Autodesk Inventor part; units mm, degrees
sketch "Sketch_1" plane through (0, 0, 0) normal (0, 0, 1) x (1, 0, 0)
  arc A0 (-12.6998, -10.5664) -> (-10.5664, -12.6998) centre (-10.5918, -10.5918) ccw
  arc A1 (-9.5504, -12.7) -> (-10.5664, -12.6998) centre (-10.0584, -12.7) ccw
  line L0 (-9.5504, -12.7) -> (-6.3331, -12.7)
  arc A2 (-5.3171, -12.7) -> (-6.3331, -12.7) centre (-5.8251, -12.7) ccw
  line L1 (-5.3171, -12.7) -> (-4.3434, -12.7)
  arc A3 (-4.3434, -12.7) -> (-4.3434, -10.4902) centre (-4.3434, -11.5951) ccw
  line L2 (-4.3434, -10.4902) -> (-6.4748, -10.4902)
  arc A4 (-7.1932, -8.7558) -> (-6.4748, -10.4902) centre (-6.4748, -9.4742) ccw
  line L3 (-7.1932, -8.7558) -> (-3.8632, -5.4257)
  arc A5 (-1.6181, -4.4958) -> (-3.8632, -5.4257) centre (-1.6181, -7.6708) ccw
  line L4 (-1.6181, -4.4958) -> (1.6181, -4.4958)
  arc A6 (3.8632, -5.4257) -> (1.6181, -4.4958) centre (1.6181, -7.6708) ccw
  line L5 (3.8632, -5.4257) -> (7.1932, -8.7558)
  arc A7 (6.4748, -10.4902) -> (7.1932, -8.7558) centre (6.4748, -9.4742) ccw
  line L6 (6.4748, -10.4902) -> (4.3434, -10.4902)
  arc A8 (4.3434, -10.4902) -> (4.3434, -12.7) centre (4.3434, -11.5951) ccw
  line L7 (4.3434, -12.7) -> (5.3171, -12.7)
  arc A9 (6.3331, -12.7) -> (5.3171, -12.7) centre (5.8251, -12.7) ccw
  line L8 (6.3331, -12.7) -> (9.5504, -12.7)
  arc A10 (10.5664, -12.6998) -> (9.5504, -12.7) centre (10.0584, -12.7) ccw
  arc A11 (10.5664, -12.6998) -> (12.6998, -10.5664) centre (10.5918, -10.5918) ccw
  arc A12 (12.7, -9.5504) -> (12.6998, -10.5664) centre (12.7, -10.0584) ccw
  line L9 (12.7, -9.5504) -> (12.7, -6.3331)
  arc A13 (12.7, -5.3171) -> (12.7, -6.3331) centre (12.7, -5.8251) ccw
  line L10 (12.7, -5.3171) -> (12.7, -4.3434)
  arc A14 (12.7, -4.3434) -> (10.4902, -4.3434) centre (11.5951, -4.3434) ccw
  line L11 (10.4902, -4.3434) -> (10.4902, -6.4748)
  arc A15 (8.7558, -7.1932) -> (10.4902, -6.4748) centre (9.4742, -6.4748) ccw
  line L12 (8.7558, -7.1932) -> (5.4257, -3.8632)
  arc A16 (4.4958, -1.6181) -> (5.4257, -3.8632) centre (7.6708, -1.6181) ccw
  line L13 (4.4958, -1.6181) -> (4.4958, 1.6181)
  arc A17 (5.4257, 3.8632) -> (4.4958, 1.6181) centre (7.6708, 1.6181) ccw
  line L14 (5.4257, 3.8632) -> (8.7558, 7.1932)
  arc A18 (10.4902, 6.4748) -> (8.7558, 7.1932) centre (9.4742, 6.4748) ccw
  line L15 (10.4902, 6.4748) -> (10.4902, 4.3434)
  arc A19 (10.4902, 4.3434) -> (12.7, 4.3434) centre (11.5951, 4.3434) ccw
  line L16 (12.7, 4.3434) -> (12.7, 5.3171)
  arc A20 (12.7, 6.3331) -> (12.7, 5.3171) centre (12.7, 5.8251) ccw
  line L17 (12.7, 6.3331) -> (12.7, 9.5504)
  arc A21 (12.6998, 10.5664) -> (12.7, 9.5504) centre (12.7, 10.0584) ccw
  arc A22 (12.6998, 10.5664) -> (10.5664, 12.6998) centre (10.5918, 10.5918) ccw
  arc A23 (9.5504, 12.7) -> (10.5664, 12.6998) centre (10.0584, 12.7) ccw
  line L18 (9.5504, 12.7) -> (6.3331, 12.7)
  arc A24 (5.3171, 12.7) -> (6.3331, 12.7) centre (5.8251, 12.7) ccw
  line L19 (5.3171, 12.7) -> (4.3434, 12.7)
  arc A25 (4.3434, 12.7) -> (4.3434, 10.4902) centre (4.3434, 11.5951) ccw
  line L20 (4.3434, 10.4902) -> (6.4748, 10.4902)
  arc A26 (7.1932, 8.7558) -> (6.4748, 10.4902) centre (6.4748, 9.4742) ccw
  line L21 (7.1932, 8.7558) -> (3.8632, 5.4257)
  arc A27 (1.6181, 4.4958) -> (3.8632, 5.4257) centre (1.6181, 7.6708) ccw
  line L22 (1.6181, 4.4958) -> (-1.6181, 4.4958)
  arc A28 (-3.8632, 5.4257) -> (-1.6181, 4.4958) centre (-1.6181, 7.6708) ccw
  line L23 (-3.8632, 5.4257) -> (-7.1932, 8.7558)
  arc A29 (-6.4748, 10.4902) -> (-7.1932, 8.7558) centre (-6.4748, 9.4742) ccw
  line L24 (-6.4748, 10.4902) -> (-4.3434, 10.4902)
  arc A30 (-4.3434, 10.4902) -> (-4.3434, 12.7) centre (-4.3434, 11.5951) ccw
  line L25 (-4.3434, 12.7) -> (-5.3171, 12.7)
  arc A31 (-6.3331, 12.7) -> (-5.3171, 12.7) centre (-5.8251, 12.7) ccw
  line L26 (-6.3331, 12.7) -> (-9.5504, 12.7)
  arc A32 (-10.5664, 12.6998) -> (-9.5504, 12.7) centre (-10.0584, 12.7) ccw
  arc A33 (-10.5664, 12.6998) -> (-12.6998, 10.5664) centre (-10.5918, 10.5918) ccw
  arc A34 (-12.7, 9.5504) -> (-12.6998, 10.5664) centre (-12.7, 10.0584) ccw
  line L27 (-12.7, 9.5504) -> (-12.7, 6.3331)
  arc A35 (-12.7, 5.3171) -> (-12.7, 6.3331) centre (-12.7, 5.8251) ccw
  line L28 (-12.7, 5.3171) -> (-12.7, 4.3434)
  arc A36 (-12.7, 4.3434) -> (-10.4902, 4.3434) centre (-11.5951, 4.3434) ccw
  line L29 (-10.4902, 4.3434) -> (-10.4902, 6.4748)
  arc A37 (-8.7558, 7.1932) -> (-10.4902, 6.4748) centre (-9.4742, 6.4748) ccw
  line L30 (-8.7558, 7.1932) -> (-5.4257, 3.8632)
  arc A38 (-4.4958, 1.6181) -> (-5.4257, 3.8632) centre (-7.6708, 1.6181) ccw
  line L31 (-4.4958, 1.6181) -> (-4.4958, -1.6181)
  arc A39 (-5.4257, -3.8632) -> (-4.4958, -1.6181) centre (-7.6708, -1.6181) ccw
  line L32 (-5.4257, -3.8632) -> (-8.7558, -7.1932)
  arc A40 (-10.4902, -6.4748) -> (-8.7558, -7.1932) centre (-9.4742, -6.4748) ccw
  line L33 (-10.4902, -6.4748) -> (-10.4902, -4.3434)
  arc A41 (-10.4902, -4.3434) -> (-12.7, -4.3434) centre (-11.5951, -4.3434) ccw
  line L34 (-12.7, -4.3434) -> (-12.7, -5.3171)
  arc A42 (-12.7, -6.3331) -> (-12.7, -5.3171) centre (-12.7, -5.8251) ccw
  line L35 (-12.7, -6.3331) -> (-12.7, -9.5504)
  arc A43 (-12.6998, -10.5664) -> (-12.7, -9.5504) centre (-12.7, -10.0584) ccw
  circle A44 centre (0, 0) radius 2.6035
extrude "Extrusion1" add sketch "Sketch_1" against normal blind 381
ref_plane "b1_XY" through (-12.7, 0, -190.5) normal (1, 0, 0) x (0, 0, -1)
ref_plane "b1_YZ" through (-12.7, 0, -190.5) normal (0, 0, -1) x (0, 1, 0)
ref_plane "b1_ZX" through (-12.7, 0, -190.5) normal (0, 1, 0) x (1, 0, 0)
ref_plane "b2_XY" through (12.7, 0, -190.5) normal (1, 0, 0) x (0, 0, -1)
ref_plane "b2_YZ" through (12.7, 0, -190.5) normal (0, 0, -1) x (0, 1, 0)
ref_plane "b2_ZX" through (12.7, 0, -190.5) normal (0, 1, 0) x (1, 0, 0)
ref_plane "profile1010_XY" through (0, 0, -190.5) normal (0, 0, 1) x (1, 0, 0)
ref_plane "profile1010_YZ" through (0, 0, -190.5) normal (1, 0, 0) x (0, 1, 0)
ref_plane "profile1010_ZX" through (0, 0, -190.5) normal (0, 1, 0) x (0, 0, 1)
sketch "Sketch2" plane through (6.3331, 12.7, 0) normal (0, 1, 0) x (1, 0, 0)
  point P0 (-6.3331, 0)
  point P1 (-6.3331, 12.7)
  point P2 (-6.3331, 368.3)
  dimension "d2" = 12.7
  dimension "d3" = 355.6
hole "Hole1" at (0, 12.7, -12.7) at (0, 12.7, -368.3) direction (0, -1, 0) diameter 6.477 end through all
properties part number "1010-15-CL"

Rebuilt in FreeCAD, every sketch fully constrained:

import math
import FreeCAD as App
import Part
import Sketcher
from FreeCAD import Vector
Q = App.Units.Quantity

doc = App.newDocument("Part")
body = doc.addObject("PartDesign::Body", "Body")

# Sketch on XY plane
sketch1 = doc.addObject("Sketcher::SketchObject", "Sketch")
body.addObject(sketch1)
sketch1.AttachmentSupport = (doc.XY_Plane, [""])
sketch1.MapMode = "FlatFace"
sketch1.addGeometry([
    Part.ArcOfCircle(Part.Circle(Vector(-12.7, -10.1, 0), Vector(0, 0, 1), 0.5), math.radians(-90), math.radians(90)),  # 0
    Part.ArcOfCircle(Part.Circle(Vector(-10.6, -10.6, 0), Vector(0, 0, 1), 2.1), math.radians(179), math.radians(271)),  # 1
    Part.ArcOfCircle(Part.Circle(Vector(-10.1, -12.7, 0), Vector(0, 0, 1), 0.5), math.radians(0), math.radians(180)),  # 2
    Part.LineSegment(Vector(-9.6, -12.7, 0), Vector(-6.3, -12.7, 0)),  # 3
    Part.ArcOfCircle(Part.Circle(Vector(-5.8, -12.7, 0), Vector(0, 0, 1), 0.5), math.radians(0), math.radians(180)),  # 4
    Part.LineSegment(Vector(-5.3, -12.7, 0), Vector(-4.3, -12.7, 0)),  # 5
    Part.ArcOfCircle(Part.Circle(Vector(-4.3, -11.6, 0), Vector(0, 0, 1), 1.1), math.radians(-90), math.radians(90)),  # 6
    Part.LineSegment(Vector(-4.3, -10.5, 0), Vector(-6.5, -10.5, 0)),  # 7
    Part.ArcOfCircle(Part.Circle(Vector(-6.5, -9.5, 0), Vector(0, 0, 1), 1), math.radians(135), math.radians(270)),  # 8
    Part.LineSegment(Vector(-7.2, -8.8, 0), Vector(-3.9, -5.4, 0)),  # 9
    Part.ArcOfCircle(Part.Circle(Vector(-1.6, -7.7, 0), Vector(0, 0, 1), 3.2), math.radians(90), math.radians(135)),  # 10
    Part.LineSegment(Vector(-1.6, -4.5, 0), Vector(1.6, -4.5, 0)),  # 11
    Part.ArcOfCircle(Part.Circle(Vector(1.6, -7.7, 0), Vector(0, 0, 1), 3.2), math.radians(45), math.radians(90)),  # 12
    Part.LineSegment(Vector(3.9, -5.4, 0), Vector(7.2, -8.8, 0)),  # 13
    Part.ArcOfCircle(Part.Circle(Vector(6.5, -9.5, 0), Vector(0, 0, 1), 1), math.radians(-90), math.radians(45)),  # 14
    Part.LineSegment(Vector(6.5, -10.5, 0), Vector(4.3, -10.5, 0)),  # 15
    Part.ArcOfCircle(Part.Circle(Vector(4.3, -11.6, 0), Vector(0, 0, 1), 1.1), math.radians(90), math.radians(270)),  # 16
    Part.LineSegment(Vector(4.3, -12.7, 0), Vector(5.3, -12.7, 0)),  # 17
    Part.ArcOfCircle(Part.Circle(Vector(5.8, -12.7, 0), Vector(0, 0, 1), 0.5), math.radians(0), math.radians(180)),  # 18
    Part.LineSegment(Vector(6.3, -12.7, 0), Vector(9.6, -12.7, 0)),  # 19
    Part.ArcOfCircle(Part.Circle(Vector(10.1, -12.7, 0), Vector(0, 0, 1), 0.5), math.radians(0), math.radians(180)),  # 20
    Part.ArcOfCircle(Part.Circle(Vector(10.6, -10.6, 0), Vector(0, 0, 1), 2.1), math.radians(-91), math.radians(1)),  # 21
    Part.ArcOfCircle(Part.Circle(Vector(12.7, -10.1, 0), Vector(0, 0, 1), 0.5), math.radians(90), math.radians(270)),  # 22
    Part.LineSegment(Vector(12.7, -9.6, 0), Vector(12.7, -6.3, 0)),  # 23
    Part.ArcOfCircle(Part.Circle(Vector(12.7, -5.8, 0), Vector(0, 0, 1), 0.5), math.radians(90), math.radians(270)),  # 24
    Part.LineSegment(Vector(12.7, -5.3, 0), Vector(12.7, -4.3, 0)),  # 25
    Part.ArcOfCircle(Part.Circle(Vector(11.6, -4.3, 0), Vector(0, 0, 1), 1.1), math.radians(0), math.radians(180)),  # 26
    Part.LineSegment(Vector(10.5, -4.3, 0), Vector(10.5, -6.5, 0)),  # 27
    Part.ArcOfCircle(Part.Circle(Vector(9.5, -6.5, 0), Vector(0, 0, 1), 1), math.radians(-135), math.radians(0)),  # 28
    Part.LineSegment(Vector(8.8, -7.2, 0), Vector(5.4, -3.9, 0)),  # 29
    Part.ArcOfCircle(Part.Circle(Vector(7.7, -1.6, 0), Vector(0, 0, 1), 3.2), math.radians(180), math.radians(225)),  # 30
    Part.LineSegment(Vector(4.5, -1.6, 0), Vector(4.5, 1.6, 0)),  # 31
    Part.ArcOfCircle(Part.Circle(Vector(7.7, 1.6, 0), Vector(0, 0, 1), 3.2), math.radians(135), math.radians(180)),  # 32
    Part.LineSegment(Vector(5.4, 3.9, 0), Vector(8.8, 7.2, 0)),  # 33
    Part.ArcOfCircle(Part.Circle(Vector(9.5, 6.5, 0), Vector(0, 0, 1), 1), math.radians(0), math.radians(135)),  # 34
    Part.LineSegment(Vector(10.5, 6.5, 0), Vector(10.5, 4.3, 0)),  # 35
    Part.ArcOfCircle(Part.Circle(Vector(11.6, 4.3, 0), Vector(0, 0, 1), 1.1), math.radians(180), math.radians(360)),  # 36
    Part.LineSegment(Vector(12.7, 4.3, 0), Vector(12.7, 5.3, 0)),  # 37
    Part.ArcOfCircle(Part.Circle(Vector(12.7, 5.8, 0), Vector(0, 0, 1), 0.5), math.radians(90), math.radians(270)),  # 38
    Part.LineSegment(Vector(12.7, 6.3, 0), Vector(12.7, 9.6, 0)),  # 39
    Part.ArcOfCircle(Part.Circle(Vector(12.7, 10.1, 0), Vector(0, 0, 1), 0.5), math.radians(90), math.radians(270)),  # 40
    Part.ArcOfCircle(Part.Circle(Vector(10.6, 10.6, 0), Vector(0, 0, 1), 2.1), math.radians(-1), math.radians(91)),  # 41
    Part.ArcOfCircle(Part.Circle(Vector(10.1, 12.7, 0), Vector(0, 0, 1), 0.5), math.radians(180), math.radians(360)),  # 42
    Part.LineSegment(Vector(9.6, 12.7, 0), Vector(6.3, 12.7, 0)),  # 43
    Part.ArcOfCircle(Part.Circle(Vector(5.8, 12.7, 0), Vector(0, 0, 1), 0.5), math.radians(180), math.radians(360)),  # 44
    Part.LineSegment(Vector(5.3, 12.7, 0), Vector(4.3, 12.7, 0)),  # 45
    Part.ArcOfCircle(Part.Circle(Vector(4.3, 11.6, 0), Vector(0, 0, 1), 1.1), math.radians(90), math.radians(270)),  # 46
    Part.LineSegment(Vector(4.3, 10.5, 0), Vector(6.5, 10.5, 0)),  # 47
    Part.ArcOfCircle(Part.Circle(Vector(6.5, 9.5, 0), Vector(0, 0, 1), 1), math.radians(-45), math.radians(90)),  # 48
    Part.LineSegment(Vector(7.2, 8.8, 0), Vector(3.9, 5.4, 0)),  # 49
    Part.ArcOfCircle(Part.Circle(Vector(1.6, 7.7, 0), Vector(0, 0, 1), 3.2), math.radians(-90), math.radians(-45)),  # 50
    Part.LineSegment(Vector(1.6, 4.5, 0), Vector(-1.6, 4.5, 0)),  # 51
    Part.ArcOfCircle(Part.Circle(Vector(-1.6, 7.7, 0), Vector(0, 0, 1), 3.2), math.radians(-135), math.radians(-90)),  # 52
    Part.LineSegment(Vector(-3.9, 5.4, 0), Vector(-7.2, 8.8, 0)),  # 53
    Part.ArcOfCircle(Part.Circle(Vector(-6.5, 9.5, 0), Vector(0, 0, 1), 1), math.radians(90), math.radians(225)),  # 54
    Part.LineSegment(Vector(-6.5, 10.5, 0), Vector(-4.3, 10.5, 0)),  # 55
    Part.ArcOfCircle(Part.Circle(Vector(-4.3, 11.6, 0), Vector(0, 0, 1), 1.1), math.radians(-90), math.radians(90)),  # 56
    Part.LineSegment(Vector(-4.3, 12.7, 0), Vector(-5.3, 12.7, 0)),  # 57
    Part.ArcOfCircle(Part.Circle(Vector(-5.8, 12.7, 0), Vector(0, 0, 1), 0.5), math.radians(180), math.radians(360)),  # 58
    Part.LineSegment(Vector(-6.3, 12.7, 0), Vector(-9.6, 12.7, 0)),  # 59
    Part.ArcOfCircle(Part.Circle(Vector(-10.1, 12.7, 0), Vector(0, 0, 1), 0.5), math.radians(-180), math.radians(0)),  # 60
    Part.ArcOfCircle(Part.Circle(Vector(-10.6, 10.6, 0), Vector(0, 0, 1), 2.1), math.radians(89), math.radians(181)),  # 61
    Part.ArcOfCircle(Part.Circle(Vector(-12.7, 10.1, 0), Vector(0, 0, 1), 0.5), math.radians(-90), math.radians(90)),  # 62
    Part.LineSegment(Vector(-12.7, 9.6, 0), Vector(-12.7, 6.3, 0)),  # 63
    Part.ArcOfCircle(Part.Circle(Vector(-12.7, 5.8, 0), Vector(0, 0, 1), 0.5), math.radians(-90), math.radians(90)),  # 64
    Part.LineSegment(Vector(-12.7, 5.3, 0), Vector(-12.7, 4.3, 0)),  # 65
    Part.ArcOfCircle(Part.Circle(Vector(-11.6, 4.3, 0), Vector(0, 0, 1), 1.1), math.radians(180), math.radians(360)),  # 66
    Part.LineSegment(Vector(-10.5, 4.3, 0), Vector(-10.5, 6.5, 0)),  # 67
    Part.ArcOfCircle(Part.Circle(Vector(-9.5, 6.5, 0), Vector(0, 0, 1), 1), math.radians(45), math.radians(180)),  # 68
    Part.LineSegment(Vector(-8.8, 7.2, 0), Vector(-5.4, 3.9, 0)),  # 69
    Part.ArcOfCircle(Part.Circle(Vector(-7.7, 1.6, 0), Vector(0, 0, 1), 3.2), math.radians(0), math.radians(45)),  # 70
    Part.LineSegment(Vector(-4.5, 1.6, 0), Vector(-4.5, -1.6, 0)),  # 71
    Part.ArcOfCircle(Part.Circle(Vector(-7.7, -1.6, 0), Vector(0, 0, 1), 3.2), math.radians(-45), math.radians(0)),  # 72
    Part.LineSegment(Vector(-5.4, -3.9, 0), Vector(-8.8, -7.2, 0)),  # 73
    Part.ArcOfCircle(Part.Circle(Vector(-9.5, -6.5, 0), Vector(0, 0, 1), 1), math.radians(180), math.radians(315)),  # 74
    Part.LineSegment(Vector(-10.5, -6.5, 0), Vector(-10.5, -4.3, 0)),  # 75
    Part.ArcOfCircle(Part.Circle(Vector(-11.6, -4.3, 0), Vector(0, 0, 1), 1.1), math.radians(0), math.radians(180)),  # 76
    Part.LineSegment(Vector(-12.7, -4.3, 0), Vector(-12.7, -5.3, 0)),  # 77
    Part.ArcOfCircle(Part.Circle(Vector(-12.7, -5.8, 0), Vector(0, 0, 1), 0.5), math.radians(-90), math.radians(90)),  # 78
    Part.LineSegment(Vector(-12.7, -6.3, 0), Vector(-12.7, -9.6, 0)),  # 79
    Part.Circle(Vector(0, 0, 0), Vector(0, 0, 1), 2.6),  # 80
], False)
sketch1.addConstraint([
    Sketcher.Constraint("Coincident", 0, 1, 1, 1),
    Sketcher.Constraint("Coincident", 1, 2, 2, 2),
    Sketcher.Constraint("Coincident", 2, 1, 3, 1),
    Sketcher.Constraint("Coincident", 3, 2, 4, 2),
    Sketcher.Constraint("Coincident", 4, 1, 5, 1),
    Sketcher.Constraint("Tangent", 5, 2, 6, 1),
    Sketcher.Constraint("Tangent", 6, 2, 7, 1),
    Sketcher.Constraint("Tangent", 7, 2, 8, 2),
    Sketcher.Constraint("Tangent", 8, 1, 9, 1),
    Sketcher.Constraint("Tangent", 9, 2, 10, 2),
    Sketcher.Constraint("Tangent", 10, 1, 11, 1),
    Sketcher.Constraint("Tangent", 11, 2, 12, 2),
    Sketcher.Constraint("Tangent", 12, 1, 13, 1),
    Sketcher.Constraint("Tangent", 13, 2, 14, 2),
    Sketcher.Constraint("Tangent", 14, 1, 15, 1),
    Sketcher.Constraint("Tangent", 15, 2, 16, 1),
    Sketcher.Constraint("Tangent", 16, 2, 17, 1),
    Sketcher.Constraint("Coincident", 17, 2, 18, 2),
    Sketcher.Constraint("Coincident", 18, 1, 19, 1),
    Sketcher.Constraint("Coincident", 19, 2, 20, 2),
    Sketcher.Constraint("Coincident", 20, 1, 21, 1),
    Sketcher.Constraint("Coincident", 21, 2, 22, 2),
    Sketcher.Constraint("Coincident", 22, 1, 23, 1),
    Sketcher.Constraint("Coincident", 23, 2, 24, 2),
    Sketcher.Constraint("Coincident", 24, 1, 25, 1),
    Sketcher.Constraint("Tangent", 25, 2, 26, 1),
    Sketcher.Constraint("Tangent", 26, 2, 27, 1),
    Sketcher.Constraint("Tangent", 27, 2, 28, 2),
    Sketcher.Constraint("Tangent", 28, 1, 29, 1),
    Sketcher.Constraint("Tangent", 29, 2, 30, 2),
    Sketcher.Constraint("Tangent", 30, 1, 31, 1),
    Sketcher.Constraint("Tangent", 31, 2, 32, 2),
    Sketcher.Constraint("Tangent", 32, 1, 33, 1),
    Sketcher.Constraint("Tangent", 33, 2, 34, 2),
    Sketcher.Constraint("Tangent", 34, 1, 35, 1),
    Sketcher.Constraint("Tangent", 35, 2, 36, 1),
    Sketcher.Constraint("Tangent", 36, 2, 37, 1),
    Sketcher.Constraint("Coincident", 37, 2, 38, 2),
    Sketcher.Constraint("Coincident", 38, 1, 39, 1),
    Sketcher.Constraint("Coincident", 39, 2, 40, 2),
    Sketcher.Constraint("Coincident", 40, 1, 41, 1),
    Sketcher.Constraint("Coincident", 41, 2, 42, 2),
    Sketcher.Constraint("Coincident", 42, 1, 43, 1),
    Sketcher.Constraint("Coincident", 43, 2, 44, 2),
    Sketcher.Constraint("Coincident", 44, 1, 45, 1),
    Sketcher.Constraint("Tangent", 45, 2, 46, 1),
    Sketcher.Constraint("Tangent", 46, 2, 47, 1),
    Sketcher.Constraint("Tangent", 47, 2, 48, 2),
    Sketcher.Constraint("Tangent", 48, 1, 49, 1),
    Sketcher.Constraint("Tangent", 49, 2, 50, 2),
    Sketcher.Constraint("Tangent", 50, 1, 51, 1),
    Sketcher.Constraint("Tangent", 51, 2, 52, 2),
    Sketcher.Constraint("Tangent", 52, 1, 53, 1),
    Sketcher.Constraint("Tangent", 53, 2, 54, 2),
    Sketcher.Constraint("Tangent", 54, 1, 55, 1),
    Sketcher.Constraint("Tangent", 55, 2, 56, 1),
    Sketcher.Constraint("Tangent", 56, 2, 57, 1),
    Sketcher.Constraint("Coincident", 57, 2, 58, 2),
    Sketcher.Constraint("Coincident", 58, 1, 59, 1),
    Sketcher.Constraint("Coincident", 59, 2, 60, 2),
    Sketcher.Constraint("Coincident", 60, 1, 61, 1),
    Sketcher.Constraint("Coincident", 61, 2, 62, 2),
    Sketcher.Constraint("Coincident", 62, 1, 63, 1),
    Sketcher.Constraint("Coincident", 63, 2, 64, 2),
    Sketcher.Constraint("Coincident", 64, 1, 65, 1),
    Sketcher.Constraint("Tangent", 65, 2, 66, 1),
    Sketcher.Constraint("Tangent", 66, 2, 67, 1),
    Sketcher.Constraint("Tangent", 67, 2, 68, 2),
    Sketcher.Constraint("Tangent", 68, 1, 69, 1),
    Sketcher.Constraint("Tangent", 69, 2, 70, 2),
    Sketcher.Constraint("Tangent", 70, 1, 71, 1),
    Sketcher.Constraint("Tangent", 71, 2, 72, 2),
    Sketcher.Constraint("Tangent", 72, 1, 73, 1),
    Sketcher.Constraint("Tangent", 73, 2, 74, 2),
    Sketcher.Constraint("Tangent", 74, 1, 75, 1),
    Sketcher.Constraint("Tangent", 75, 2, 76, 1),
    Sketcher.Constraint("Tangent", 76, 2, 77, 1),
    Sketcher.Constraint("Coincident", 77, 2, 78, 2),
    Sketcher.Constraint("Coincident", 78, 1, 79, 1),
    Sketcher.Constraint("Coincident", 79, 2, 0, 2),
    Sketcher.Constraint("Horizontal", 3),
    Sketcher.Constraint("Horizontal", 5),
    Sketcher.Constraint("Horizontal", 7),
    Sketcher.Constraint("Horizontal", 11),
    Sketcher.Constraint("Horizontal", 15),
    Sketcher.Constraint("Horizontal", 17),
    Sketcher.Constraint("Horizontal", 19),
    Sketcher.Constraint("Vertical", 23),
    Sketcher.Constraint("Vertical", 25),
    Sketcher.Constraint("Vertical", 27),
    Sketcher.Constraint("Vertical", 31),
    Sketcher.Constraint("Vertical", 35),
    Sketcher.Constraint("Vertical", 37),
    Sketcher.Constraint("Vertical", 39),
    Sketcher.Constraint("Horizontal", 43),
    Sketcher.Constraint("Horizontal", 45),
    Sketcher.Constraint("Horizontal", 47),
    Sketcher.Constraint("Horizontal", 51),
    Sketcher.Constraint("Horizontal", 55),
    Sketcher.Constraint("Horizontal", 57),
    Sketcher.Constraint("Horizontal", 59),
    Sketcher.Constraint("Vertical", 63),
    Sketcher.Constraint("Vertical", 65),
    Sketcher.Constraint("Vertical", 67),
    Sketcher.Constraint("Vertical", 71),
    Sketcher.Constraint("Vertical", 75),
    Sketcher.Constraint("Vertical", 77),
    Sketcher.Constraint("Vertical", 79),
    Sketcher.Constraint("Coincident", 80, 3, -1, 1),
    Sketcher.Constraint("Equal", 0, 2),
    Sketcher.Constraint("Equal", 2, 4),
    Sketcher.Constraint("Equal", 10, 12),
    Sketcher.Constraint("Equal", 8, 14),
    Sketcher.Constraint("Equal", 6, 16),
    Sketcher.Constraint("Equal", 4, 18),
    Sketcher.Constraint("Equal", 18, 20),
    Sketcher.Constraint("Equal", 1, 21),
    Sketcher.Constraint("Equal", 20, 22),
    Sketcher.Constraint("Equal", 22, 24),
    Sketcher.Constraint("Equal", 16, 26),
    Sketcher.Constraint("Equal", 14, 28),
    Sketcher.Constraint("Equal", 12, 30),
    Sketcher.Constraint("Equal", 30, 32),
    Sketcher.Constraint("Equal", 28, 34),
    Sketcher.Constraint("Equal", 26, 36),
    Sketcher.Constraint("Equal", 24, 38),
    Sketcher.Constraint("Equal", 38, 40),
    Sketcher.Constraint("Equal", 21, 41),
    Sketcher.Constraint("Equal", 40, 42),
    Sketcher.Constraint("Equal", 42, 44),
    Sketcher.Constraint("Equal", 36, 46),
    Sketcher.Constraint("Equal", 34, 48),
    Sketcher.Constraint("Equal", 32, 50),
    Sketcher.Constraint("Equal", 50, 52),
    Sketcher.Constraint("Equal", 48, 54),
    Sketcher.Constraint("Equal", 46, 56),
    Sketcher.Constraint("Equal", 44, 58),
    Sketcher.Constraint("Equal", 58, 60),
    Sketcher.Constraint("Equal", 41, 61),
    Sketcher.Constraint("Equal", 60, 62),
    Sketcher.Constraint("Equal", 62, 64),
    Sketcher.Constraint("Equal", 56, 66),
    Sketcher.Constraint("Equal", 54, 68),
    Sketcher.Constraint("Equal", 52, 70),
    Sketcher.Constraint("Equal", 70, 72),
    Sketcher.Constraint("Equal", 68, 74),
    Sketcher.Constraint("Equal", 66, 76),
    Sketcher.Constraint("Equal", 64, 78),
    Sketcher.Constraint("Symmetric", 0, 3, 40, 3, -1, 1),
    Sketcher.Constraint("Symmetric", 1, 3, 41, 3, -1, 1),
    Sketcher.Constraint("Symmetric", 2, 3, 42, 3, -1, 1),
    Sketcher.Constraint("Symmetric", 4, 3, 44, 3, -1, 1),
    Sketcher.Constraint("Symmetric", 6, 3, 46, 3, -1, 1),
    Sketcher.Constraint("Symmetric", 10, 3, 50, 3, -1, 1),
    Sketcher.Constraint("Symmetric", 14, 3, 54, 3, -1, 1),
    Sketcher.Constraint("Symmetric", 18, 3, 58, 3, -1, 1),
    Sketcher.Constraint("Symmetric", 20, 3, 60, 3, -1, 1),
    Sketcher.Constraint("Symmetric", 21, 3, 61, 3, -1, 1),
    Sketcher.Constraint("Symmetric", 22, 3, 62, 3, -1, 1),
    Sketcher.Constraint("Symmetric", 24, 3, 64, 3, -1, 1),
    Sketcher.Constraint("Symmetric", 26, 3, 66, 3, -1, 1),
    Sketcher.Constraint("Symmetric", 30, 3, 70, 3, -1, 1),
    Sketcher.Constraint("Symmetric", 34, 3, 74, 3, -1, 1),
    Sketcher.Constraint("Symmetric", 38, 3, 78, 3, -1, 1),
    Sketcher.Constraint("Symmetric", 8, 3, 14, 3, -2),
    Sketcher.Constraint("Symmetric", 4, 3, 18, 3, -2),
    Sketcher.Constraint("Symmetric", 2, 3, 20, 3, -2),
    Sketcher.Constraint("Symmetric", 1, 3, 21, 3, -2),
    Sketcher.Constraint("Symmetric", 0, 3, 22, 3, -2),
    Sketcher.Constraint("Symmetric", 38, 3, 64, 3, -2),
    Sketcher.Constraint("Symmetric", 36, 3, 66, 3, -2),
    Sketcher.Constraint("Symmetric", 49, 2, 52, 1, -2),
    Sketcher.Constraint("Symmetric", 33, 2, 68, 1, -2),
    Sketcher.Constraint("Symmetric", 29, 2, 72, 1, -2),
    Sketcher.Constraint("Perpendicular", 9, 13),
    Sketcher.Constraint("Parallel", 13, 29),
    Sketcher.Constraint("Perpendicular", 29, 33),
    Sketcher.Constraint("Horizontal", 2, 3, 4, 3),
    Sketcher.Constraint("Horizontal", 26, 3, 76, 3),
    Sketcher.Constraint("Horizontal", 20, 3, 1, 2),
    Sketcher.Constraint("Horizontal", 1, 2, 2, 1),
    Sketcher.Constraint("Horizontal", 3, 2, 4, 1),
    Sketcher.Constraint("Horizontal", 17, 2, 18, 1),
    Sketcher.Constraint("Horizontal", 41, 2, 42, 1),
    Sketcher.Constraint("Horizontal", 57, 2, 58, 1),
    Sketcher.Constraint("Vertical", 22, 3, 24, 3),
    Sketcher.Constraint("Vertical", 16, 3, 46, 3),
    Sketcher.Constraint("Vertical", 6, 3, 56, 3),
    Sketcher.Constraint("Vertical", 78, 3, 0, 1),
    Sketcher.Constraint("Vertical", 21, 2, 22, 1),
    Sketcher.Constraint("Vertical", 23, 2, 24, 1),
    Sketcher.Constraint("Vertical", 37, 2, 38, 1),
    Sketcher.Constraint("Vertical", 61, 2, 62, 1),
    Sketcher.Constraint("Vertical", 77, 2, 78, 1),
    Sketcher.Constraint("Equal", 59, 23),
    Sketcher.Constraint("Equal", 57, 25),
    Sketcher.Constraint("Equal", 55, 27),
    Sketcher.Constraint("Equal", 51, 31),
    Sketcher.Constraint("Equal", 13, 29),
    Sketcher.Constraint("Radius", 0, Q("0.02 in")),
    Sketcher.Constraint("Radius", 8, Q("0.04 in")),
    Sketcher.Constraint("Diameter", 80, Q("0.205 in")),
    Sketcher.Constraint("Radius", 1, Q("0.083 in")),
    Sketcher.Constraint("Radius", 10, Q("0.125 in")),
    Sketcher.Constraint("DistanceX", 0, 3, -1, 1, Q("0.5 in")),
    Sketcher.Constraint("DistanceY", 2, 3, -1, 1, Q("0.5 in")),
    Sketcher.Constraint("Radius", 6, Q("0.0435 in")),
    Sketcher.Constraint("DistanceX", 11, 1, 11, 2, Q("0.1274 in")),
    Sketcher.Constraint("DistanceY", 0, 3, -1, 1, Q("0.396 in")),
    Sketcher.Constraint("DistanceX", 6, 3, -1, 1, Q("0.171 in")),
    Sketcher.Constraint("DistanceY", 10, 3, -1, 1, Q("0.302 in")),
    Sketcher.Constraint("DistanceX", 3, 1, 3, 2, 3.2173),
])
pad1 = doc.addObject("PartDesign::Pad", "Pad")
body.addObject(pad1)
pad1.Profile = sketch1
pad1.Length = Q("15 in")
pad1.Reversed = True

# Sketch on XZ plane
sketch2 = doc.addObject("Sketcher::SketchObject", "Sketch001")
body.addObject(sketch2)
sketch2.AttachmentSupport = (doc.XZ_Plane, [""])
sketch2.MapMode = "FlatFace"
sketch2.AttachmentOffset = App.Placement(Vector(0, 0, -0.5 * 25.4), App.Rotation())
sketch2.addGeometry([
    Part.Circle(Vector(0, -12.7, 0), Vector(0, 0, 1), 3.2),
    Part.Circle(Vector(0, -368.3, 0), Vector(0, 0, 1), 3.2),
], False)
sketch2.addConstraint([
    Sketcher.Constraint("Equal", 0, 1),
    Sketcher.Constraint("PointOnObject", 0, 3, -2),
    Sketcher.Constraint("PointOnObject", 1, 3, -2),
    Sketcher.Constraint("Diameter", 0, Q("0.255 in")),
    Sketcher.Constraint("DistanceY", 1, 3, 0, 3, Q("14 in")),
    Sketcher.Constraint("DistanceY", 0, 3, -1, 1, Q("0.5 in")),
])
doc.recompute()
hole = doc.addObject("PartDesign::Hole", "Hole")
body.addObject(hole)
hole.Profile = sketch2
hole.ThreadType = "None"
hole.Diameter = Q("0.255 in")
hole.DepthType = "ThroughAll"
hole.Reversed = True

doc.recompute()
